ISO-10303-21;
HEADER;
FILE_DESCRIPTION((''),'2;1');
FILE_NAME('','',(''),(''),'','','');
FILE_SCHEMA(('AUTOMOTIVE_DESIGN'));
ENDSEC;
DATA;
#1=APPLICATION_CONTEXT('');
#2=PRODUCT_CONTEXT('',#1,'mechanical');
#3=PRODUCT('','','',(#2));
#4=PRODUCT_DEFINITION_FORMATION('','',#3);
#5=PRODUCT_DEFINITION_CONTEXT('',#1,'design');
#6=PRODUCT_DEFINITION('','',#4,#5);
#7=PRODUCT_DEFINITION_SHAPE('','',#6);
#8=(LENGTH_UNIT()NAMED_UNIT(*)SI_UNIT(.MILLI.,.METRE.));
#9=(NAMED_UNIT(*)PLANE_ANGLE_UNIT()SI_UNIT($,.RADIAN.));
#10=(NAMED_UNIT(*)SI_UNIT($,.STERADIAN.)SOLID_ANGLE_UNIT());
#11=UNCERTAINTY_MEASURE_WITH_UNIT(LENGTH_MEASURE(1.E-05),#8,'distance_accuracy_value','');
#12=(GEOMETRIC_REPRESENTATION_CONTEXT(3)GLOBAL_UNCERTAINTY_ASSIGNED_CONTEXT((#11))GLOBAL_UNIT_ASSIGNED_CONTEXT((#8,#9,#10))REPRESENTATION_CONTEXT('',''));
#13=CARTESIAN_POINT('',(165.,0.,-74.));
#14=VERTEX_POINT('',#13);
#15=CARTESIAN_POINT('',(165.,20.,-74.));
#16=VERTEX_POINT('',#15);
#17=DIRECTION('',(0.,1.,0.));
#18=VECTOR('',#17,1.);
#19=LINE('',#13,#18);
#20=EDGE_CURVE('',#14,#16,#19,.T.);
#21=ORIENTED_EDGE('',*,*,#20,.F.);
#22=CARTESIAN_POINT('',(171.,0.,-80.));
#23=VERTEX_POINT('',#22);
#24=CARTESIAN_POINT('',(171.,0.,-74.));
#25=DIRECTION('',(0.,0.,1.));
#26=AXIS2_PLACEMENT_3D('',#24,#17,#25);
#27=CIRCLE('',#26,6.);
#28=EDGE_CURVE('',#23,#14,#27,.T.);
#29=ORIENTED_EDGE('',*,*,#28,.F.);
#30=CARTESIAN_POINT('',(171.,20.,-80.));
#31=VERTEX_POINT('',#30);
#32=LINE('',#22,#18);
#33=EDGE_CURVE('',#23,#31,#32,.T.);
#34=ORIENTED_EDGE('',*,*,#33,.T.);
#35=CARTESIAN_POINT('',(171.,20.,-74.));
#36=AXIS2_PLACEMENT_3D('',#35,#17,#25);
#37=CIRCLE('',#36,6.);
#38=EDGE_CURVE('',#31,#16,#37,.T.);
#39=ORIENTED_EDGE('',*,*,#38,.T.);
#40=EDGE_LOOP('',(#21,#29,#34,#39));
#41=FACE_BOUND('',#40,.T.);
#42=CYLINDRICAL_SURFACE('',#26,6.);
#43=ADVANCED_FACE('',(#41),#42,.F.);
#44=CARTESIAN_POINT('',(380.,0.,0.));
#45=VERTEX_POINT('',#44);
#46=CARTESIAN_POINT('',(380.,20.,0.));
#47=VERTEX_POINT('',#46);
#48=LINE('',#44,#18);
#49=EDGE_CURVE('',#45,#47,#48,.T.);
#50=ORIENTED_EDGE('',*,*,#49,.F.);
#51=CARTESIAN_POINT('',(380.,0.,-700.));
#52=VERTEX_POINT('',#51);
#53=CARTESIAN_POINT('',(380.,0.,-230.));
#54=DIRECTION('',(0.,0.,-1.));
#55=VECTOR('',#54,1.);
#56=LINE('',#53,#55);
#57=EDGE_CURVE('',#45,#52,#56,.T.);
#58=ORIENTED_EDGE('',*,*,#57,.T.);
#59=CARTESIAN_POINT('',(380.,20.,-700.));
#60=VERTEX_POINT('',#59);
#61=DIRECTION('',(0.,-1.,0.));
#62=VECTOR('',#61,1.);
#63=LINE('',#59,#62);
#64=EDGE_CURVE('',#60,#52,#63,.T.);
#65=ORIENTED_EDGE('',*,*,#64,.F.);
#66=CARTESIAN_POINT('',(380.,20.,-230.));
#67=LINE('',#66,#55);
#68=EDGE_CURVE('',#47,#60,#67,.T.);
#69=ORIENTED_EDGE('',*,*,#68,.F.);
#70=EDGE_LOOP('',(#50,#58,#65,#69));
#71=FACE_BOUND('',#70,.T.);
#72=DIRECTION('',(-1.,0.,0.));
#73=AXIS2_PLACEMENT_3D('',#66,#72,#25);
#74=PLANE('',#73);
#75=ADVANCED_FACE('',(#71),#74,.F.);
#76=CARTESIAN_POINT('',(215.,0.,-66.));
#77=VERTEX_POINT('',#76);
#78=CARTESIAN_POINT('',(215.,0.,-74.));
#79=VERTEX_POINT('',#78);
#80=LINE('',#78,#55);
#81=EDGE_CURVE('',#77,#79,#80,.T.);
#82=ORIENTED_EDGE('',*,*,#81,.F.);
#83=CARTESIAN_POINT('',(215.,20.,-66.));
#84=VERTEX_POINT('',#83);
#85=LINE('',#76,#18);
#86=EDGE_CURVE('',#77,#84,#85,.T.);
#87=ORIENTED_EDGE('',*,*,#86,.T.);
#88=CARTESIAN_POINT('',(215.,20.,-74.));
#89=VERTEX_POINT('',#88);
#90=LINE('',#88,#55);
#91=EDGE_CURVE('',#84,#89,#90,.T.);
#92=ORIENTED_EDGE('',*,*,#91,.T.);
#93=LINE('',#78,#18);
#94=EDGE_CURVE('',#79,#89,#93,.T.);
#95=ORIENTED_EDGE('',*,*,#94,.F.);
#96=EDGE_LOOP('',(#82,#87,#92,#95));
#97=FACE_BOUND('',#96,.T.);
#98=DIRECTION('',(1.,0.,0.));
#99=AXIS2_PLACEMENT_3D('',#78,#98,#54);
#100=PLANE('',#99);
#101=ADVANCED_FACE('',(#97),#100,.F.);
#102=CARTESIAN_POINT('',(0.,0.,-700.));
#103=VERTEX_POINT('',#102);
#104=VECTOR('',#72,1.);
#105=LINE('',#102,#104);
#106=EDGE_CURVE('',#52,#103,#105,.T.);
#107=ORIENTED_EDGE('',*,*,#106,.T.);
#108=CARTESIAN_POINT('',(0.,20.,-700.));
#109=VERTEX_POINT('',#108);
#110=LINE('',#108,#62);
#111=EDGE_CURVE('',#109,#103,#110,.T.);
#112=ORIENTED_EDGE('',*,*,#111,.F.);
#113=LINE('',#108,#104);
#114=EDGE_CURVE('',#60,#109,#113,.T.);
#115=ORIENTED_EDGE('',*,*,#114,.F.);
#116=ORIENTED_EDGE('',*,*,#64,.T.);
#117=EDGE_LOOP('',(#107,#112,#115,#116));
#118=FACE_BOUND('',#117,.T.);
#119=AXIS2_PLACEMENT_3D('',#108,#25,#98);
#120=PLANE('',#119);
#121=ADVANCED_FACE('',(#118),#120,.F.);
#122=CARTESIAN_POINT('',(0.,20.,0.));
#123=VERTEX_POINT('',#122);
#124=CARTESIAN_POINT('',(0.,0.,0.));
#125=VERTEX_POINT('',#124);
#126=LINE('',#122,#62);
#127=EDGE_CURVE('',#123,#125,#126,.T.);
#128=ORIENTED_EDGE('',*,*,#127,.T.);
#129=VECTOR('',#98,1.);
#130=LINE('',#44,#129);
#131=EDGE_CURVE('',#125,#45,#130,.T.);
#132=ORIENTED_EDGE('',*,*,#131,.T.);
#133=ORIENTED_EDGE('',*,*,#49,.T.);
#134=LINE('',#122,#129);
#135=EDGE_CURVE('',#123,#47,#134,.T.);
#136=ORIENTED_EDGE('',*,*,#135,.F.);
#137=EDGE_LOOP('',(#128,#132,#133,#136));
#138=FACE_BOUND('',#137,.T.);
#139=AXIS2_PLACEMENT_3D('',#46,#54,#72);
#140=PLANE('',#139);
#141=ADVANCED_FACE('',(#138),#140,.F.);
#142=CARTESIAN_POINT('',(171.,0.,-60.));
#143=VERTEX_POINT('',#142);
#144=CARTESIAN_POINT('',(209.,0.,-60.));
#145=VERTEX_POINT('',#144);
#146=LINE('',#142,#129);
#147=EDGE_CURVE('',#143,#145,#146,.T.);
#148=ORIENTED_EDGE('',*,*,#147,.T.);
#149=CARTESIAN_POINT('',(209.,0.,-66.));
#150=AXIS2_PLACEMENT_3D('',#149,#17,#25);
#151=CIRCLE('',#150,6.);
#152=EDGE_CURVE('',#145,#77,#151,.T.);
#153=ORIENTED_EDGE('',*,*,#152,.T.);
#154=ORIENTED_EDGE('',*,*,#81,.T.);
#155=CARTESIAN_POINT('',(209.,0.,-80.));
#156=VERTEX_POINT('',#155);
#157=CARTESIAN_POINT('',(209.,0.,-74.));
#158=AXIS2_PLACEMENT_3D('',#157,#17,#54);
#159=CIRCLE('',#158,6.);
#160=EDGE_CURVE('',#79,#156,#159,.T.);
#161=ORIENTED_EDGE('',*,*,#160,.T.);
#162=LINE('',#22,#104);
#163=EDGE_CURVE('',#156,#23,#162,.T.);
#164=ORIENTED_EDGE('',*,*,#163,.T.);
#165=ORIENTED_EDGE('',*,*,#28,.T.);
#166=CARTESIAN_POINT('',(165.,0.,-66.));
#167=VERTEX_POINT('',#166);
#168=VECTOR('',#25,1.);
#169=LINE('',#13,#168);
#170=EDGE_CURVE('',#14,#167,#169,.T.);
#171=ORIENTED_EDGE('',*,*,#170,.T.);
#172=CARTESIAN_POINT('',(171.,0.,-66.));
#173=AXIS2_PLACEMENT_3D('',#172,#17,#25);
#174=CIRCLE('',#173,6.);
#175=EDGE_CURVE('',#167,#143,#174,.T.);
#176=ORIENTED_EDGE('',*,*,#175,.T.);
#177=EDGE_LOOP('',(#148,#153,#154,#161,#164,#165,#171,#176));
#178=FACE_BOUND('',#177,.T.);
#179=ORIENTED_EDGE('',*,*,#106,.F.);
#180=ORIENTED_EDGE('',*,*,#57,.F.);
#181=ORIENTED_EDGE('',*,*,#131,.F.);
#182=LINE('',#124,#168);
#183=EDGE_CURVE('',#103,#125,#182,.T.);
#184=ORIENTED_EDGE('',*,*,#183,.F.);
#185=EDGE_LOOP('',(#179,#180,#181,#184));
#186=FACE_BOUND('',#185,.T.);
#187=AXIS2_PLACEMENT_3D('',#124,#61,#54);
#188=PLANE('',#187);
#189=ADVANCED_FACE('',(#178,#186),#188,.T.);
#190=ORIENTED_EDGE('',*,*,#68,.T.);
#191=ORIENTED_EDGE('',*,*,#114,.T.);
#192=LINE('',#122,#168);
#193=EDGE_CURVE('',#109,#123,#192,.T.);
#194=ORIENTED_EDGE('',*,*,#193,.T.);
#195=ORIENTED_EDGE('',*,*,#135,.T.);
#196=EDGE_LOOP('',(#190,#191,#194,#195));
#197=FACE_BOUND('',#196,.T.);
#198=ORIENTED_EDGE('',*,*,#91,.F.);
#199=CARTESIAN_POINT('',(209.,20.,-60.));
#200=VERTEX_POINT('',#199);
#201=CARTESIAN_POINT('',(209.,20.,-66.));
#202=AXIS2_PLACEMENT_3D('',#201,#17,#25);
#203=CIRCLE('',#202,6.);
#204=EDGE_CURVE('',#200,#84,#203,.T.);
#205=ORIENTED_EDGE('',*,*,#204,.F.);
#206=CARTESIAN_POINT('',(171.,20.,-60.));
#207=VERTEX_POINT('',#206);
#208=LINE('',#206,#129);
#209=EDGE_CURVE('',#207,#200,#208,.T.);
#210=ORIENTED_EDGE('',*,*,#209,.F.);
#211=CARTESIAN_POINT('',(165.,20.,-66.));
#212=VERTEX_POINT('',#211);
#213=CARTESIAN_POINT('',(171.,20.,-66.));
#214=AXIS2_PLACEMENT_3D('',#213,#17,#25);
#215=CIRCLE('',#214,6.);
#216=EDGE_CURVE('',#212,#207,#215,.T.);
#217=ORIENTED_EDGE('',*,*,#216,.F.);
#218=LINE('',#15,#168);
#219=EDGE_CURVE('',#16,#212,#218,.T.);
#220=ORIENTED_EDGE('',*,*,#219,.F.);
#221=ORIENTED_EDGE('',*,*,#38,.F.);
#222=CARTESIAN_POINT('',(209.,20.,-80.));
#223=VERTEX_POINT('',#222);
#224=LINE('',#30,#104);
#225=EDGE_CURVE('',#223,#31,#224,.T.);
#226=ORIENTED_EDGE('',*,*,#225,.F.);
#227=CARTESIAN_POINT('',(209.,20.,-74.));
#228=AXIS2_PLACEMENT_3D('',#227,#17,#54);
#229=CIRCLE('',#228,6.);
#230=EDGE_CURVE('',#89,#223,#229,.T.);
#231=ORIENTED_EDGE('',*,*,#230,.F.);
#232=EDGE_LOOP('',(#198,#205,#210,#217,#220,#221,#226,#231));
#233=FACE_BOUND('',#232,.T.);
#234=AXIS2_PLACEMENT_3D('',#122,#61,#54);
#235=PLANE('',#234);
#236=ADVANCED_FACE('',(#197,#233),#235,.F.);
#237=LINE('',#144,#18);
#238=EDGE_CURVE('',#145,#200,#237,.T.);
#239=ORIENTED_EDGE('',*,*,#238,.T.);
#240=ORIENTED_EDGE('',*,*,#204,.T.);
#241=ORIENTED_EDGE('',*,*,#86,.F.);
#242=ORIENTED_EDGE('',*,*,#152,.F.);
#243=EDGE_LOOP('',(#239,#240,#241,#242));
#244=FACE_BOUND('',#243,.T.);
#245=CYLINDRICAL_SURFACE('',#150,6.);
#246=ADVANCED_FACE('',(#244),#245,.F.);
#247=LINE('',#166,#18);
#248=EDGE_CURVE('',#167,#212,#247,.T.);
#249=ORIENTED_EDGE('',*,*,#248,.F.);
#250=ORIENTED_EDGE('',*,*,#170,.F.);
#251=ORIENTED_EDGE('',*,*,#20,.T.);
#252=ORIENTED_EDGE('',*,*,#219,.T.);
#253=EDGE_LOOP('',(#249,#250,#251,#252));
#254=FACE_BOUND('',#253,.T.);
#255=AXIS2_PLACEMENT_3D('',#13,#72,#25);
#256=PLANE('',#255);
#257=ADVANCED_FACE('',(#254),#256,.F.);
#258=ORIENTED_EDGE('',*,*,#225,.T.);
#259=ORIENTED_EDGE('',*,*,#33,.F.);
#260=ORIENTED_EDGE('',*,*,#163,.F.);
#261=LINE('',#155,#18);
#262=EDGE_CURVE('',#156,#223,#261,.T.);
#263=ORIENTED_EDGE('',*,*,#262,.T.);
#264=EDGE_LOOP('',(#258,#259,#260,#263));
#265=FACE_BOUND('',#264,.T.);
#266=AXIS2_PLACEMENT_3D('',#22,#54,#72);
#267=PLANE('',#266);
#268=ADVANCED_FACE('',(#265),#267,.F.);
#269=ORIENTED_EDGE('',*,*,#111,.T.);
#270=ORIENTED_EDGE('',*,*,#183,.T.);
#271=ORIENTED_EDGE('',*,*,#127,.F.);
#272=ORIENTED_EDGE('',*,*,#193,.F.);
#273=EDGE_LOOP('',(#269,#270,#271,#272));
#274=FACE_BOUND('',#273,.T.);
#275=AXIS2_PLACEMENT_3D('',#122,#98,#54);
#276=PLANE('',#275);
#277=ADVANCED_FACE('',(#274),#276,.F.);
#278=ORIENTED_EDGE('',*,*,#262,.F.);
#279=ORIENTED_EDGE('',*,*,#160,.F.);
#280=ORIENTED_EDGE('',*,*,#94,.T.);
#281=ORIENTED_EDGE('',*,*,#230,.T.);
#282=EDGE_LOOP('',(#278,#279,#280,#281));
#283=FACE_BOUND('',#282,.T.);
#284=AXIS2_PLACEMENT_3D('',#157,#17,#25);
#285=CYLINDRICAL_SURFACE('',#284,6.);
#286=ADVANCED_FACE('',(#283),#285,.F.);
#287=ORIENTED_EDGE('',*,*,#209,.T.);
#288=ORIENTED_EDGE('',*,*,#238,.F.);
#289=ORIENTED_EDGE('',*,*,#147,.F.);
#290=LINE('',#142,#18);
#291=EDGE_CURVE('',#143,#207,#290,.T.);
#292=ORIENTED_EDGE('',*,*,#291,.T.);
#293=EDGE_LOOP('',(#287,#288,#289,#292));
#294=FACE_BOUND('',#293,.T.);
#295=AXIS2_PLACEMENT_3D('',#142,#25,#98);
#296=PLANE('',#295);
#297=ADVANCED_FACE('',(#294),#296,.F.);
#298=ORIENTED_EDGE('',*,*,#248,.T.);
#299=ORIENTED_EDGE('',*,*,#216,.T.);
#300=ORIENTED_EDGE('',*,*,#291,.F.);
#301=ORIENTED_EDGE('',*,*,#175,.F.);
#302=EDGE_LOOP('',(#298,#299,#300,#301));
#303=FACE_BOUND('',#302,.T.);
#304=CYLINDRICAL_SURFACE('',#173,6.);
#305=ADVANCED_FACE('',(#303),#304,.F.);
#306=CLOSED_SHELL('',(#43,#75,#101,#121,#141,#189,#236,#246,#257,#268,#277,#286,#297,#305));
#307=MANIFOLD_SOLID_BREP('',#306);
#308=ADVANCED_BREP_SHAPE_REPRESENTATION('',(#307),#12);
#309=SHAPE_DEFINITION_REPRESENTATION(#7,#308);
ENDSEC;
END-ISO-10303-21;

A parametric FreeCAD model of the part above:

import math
import FreeCAD as App
import Part
import Sketcher

V = App.Vector
Q = App.Units.Quantity

doc = App.newDocument("Part")
body = doc.addObject("PartDesign::Body", "Body")

# Sketch on XZ plane
sketch1 = body.newObject("Sketcher::SketchObject", "Sketch")
sketch1.AttachmentSupport = (doc.getObject("XZ_Plane"), [""])
sketch1.MapMode = "FlatFace"
sketch1.addGeometry(Part.LineSegment(V(0, 0, 0), V(716, 0, 0)), False)
sketch1.addGeometry(Part.LineSegment(V(716, 0, 0), V(716, -230, 0)), False)
sketch1.addGeometry(Part.LineSegment(V(716, -230, 0), V(380, -230, 0)), False)
sketch1.addGeometry(Part.LineSegment(V(380, -230, 0), V(380, -700, 0)), False)
sketch1.addGeometry(Part.LineSegment(V(380, -700, 0), V(0, -700, 0)), False)
sketch1.addGeometry(Part.LineSegment(V(0, -700, 0), V(0, 0, 0)), False)
sketch1.addConstraint(Sketcher.Constraint("Coincident", 0, 2, 1, 1))
sketch1.addConstraint(Sketcher.Constraint("Coincident", 1, 2, 2, 1))
sketch1.addConstraint(Sketcher.Constraint("Coincident", 2, 2, 3, 1))
sketch1.addConstraint(Sketcher.Constraint("Coincident", 3, 2, 4, 1))
sketch1.addConstraint(Sketcher.Constraint("Coincident", 4, 2, 5, 1))
sketch1.addConstraint(Sketcher.Constraint("Coincident", 5, 2, 0, 1))
sketch1.addConstraint(Sketcher.Constraint("Horizontal", 0))
sketch1.addConstraint(Sketcher.Constraint("Vertical", 1))
sketch1.addConstraint(Sketcher.Constraint("Horizontal", 2))
sketch1.addConstraint(Sketcher.Constraint("Vertical", 3))
sketch1.addConstraint(Sketcher.Constraint("Horizontal", 4))
sketch1.addConstraint(Sketcher.Constraint("Vertical", 5))
sketch1.addConstraint(Sketcher.Constraint("Coincident", 5, 2, -1, 1))
sketch1.addConstraint(Sketcher.Constraint("DistanceX", 0, 1, 0, 2, Q("716 mm")))
sketch1.addConstraint(Sketcher.Constraint("DistanceX", 2, 2, 2, 1, Q("336 mm")))
sketch1.addConstraint(Sketcher.Constraint("DistanceY", 1, 2, 1, 1, Q("230 mm")))
sketch1.addConstraint(Sketcher.Constraint("DistanceY", 3, 2, 3, 1, Q("470 mm")))
pad1 = body.newObject("PartDesign::Pad", "Pad")
pad1.Profile = sketch1
pad1.Length = 20
pad1.Reversed = True

# Sketch on XZ plane
sketch2 = body.newObject("Sketcher::SketchObject", "Sketch001")
sketch2.AttachmentSupport = (doc.getObject("XZ_Plane"), [""])
sketch2.MapMode = "FlatFace"
sketch2.AttachmentOffset = App.Placement(V(0, 0, -20), App.Rotation())
sketch2.addGeometry(Part.LineSegment(V(380, -230, 0), V(380, 0, 0)), False)
sketch2.addGeometry(Part.LineSegment(V(380, 0, 0), V(716, 0, 0)), False)
sketch2.addGeometry(Part.LineSegment(V(716, 0, 0), V(716, -230, 0)), False)
sketch2.addGeometry(Part.LineSegment(V(716, -230, 0), V(380, -230, 0)), False)
sketch2.addConstraint(Sketcher.Constraint("Coincident", 0, 2, 1, 1))
sketch2.addConstraint(Sketcher.Constraint("Coincident", 1, 2, 2, 1))
sketch2.addConstraint(Sketcher.Constraint("Coincident", 2, 2, 3, 1))
sketch2.addConstraint(Sketcher.Constraint("Coincident", 3, 2, 0, 1))
sketch2.addConstraint(Sketcher.Constraint("Vertical", 0))
sketch2.addConstraint(Sketcher.Constraint("Horizontal", 1))
sketch2.addConstraint(Sketcher.Constraint("Vertical", 2))
sketch2.addConstraint(Sketcher.Constraint("Horizontal", 3))
sketch2.addConstraint(Sketcher.Constraint("PointOnObject", 0, 2, -1))
sketch2.addConstraint(Sketcher.Constraint("DistanceX", 1, 1, 1, 2, Q("336 mm")))
sketch2.addConstraint(Sketcher.Constraint("DistanceY", 0, 1, 0, 2, Q("230 mm")))
sketch2.addConstraint(Sketcher.Constraint("DistanceX", -1, 1, 0, 2, Q("380 mm")))
pocket1 = body.newObject("PartDesign::Pocket", "Pocket")
pocket1.Profile = sketch2
pocket1.Length = 20
pocket1.Reversed = True

# Sketch on XZ plane
sketch3 = body.newObject("Sketcher::SketchObject", "Sketch002")
sketch3.AttachmentSupport = (doc.getObject("XZ_Plane"), [""])
sketch3.MapMode = "FlatFace"
sketch3.AttachmentOffset = App.Placement(V(0, 0, -20), App.Rotation())
sketch3.addGeometry(Part.LineSegment(V(209, -80, 0), V(171, -80, 0)), False)
sketch3.addGeometry(Part.ArcOfCircle(Part.Circle(V(171, -74, 0), V(0, 0, 1), 6), math.radians(180), math.radians(270)), False)
sketch3.addGeometry(Part.LineSegment(V(165, -74, 0), V(165, -66, 0)), False)
sketch3.addGeometry(Part.ArcOfCircle(Part.Circle(V(171, -66, 0), V(0, 0, 1), 6), math.radians(90), math.radians(180)), False)
sketch3.addGeometry(Part.LineSegment(V(171, -60, 0), V(209, -60, 0)), False)
sketch3.addGeometry(Part.ArcOfCircle(Part.Circle(V(209, -66, 0), V(0, 0, 1), 6), math.radians(0), math.radians(90)), False)
sketch3.addGeometry(Part.LineSegment(V(215, -66, 0), V(215, -74, 0)), False)
sketch3.addGeometry(Part.ArcOfCircle(Part.Circle(V(209, -74, 0), V(0, 0, 1), 6), math.radians(-90), math.radians(0)), False)
sketch3.addConstraint(Sketcher.Constraint("Tangent", 0, 2, 1, 2))
sketch3.addConstraint(Sketcher.Constraint("Tangent", 1, 1, 2, 1))
sketch3.addConstraint(Sketcher.Constraint("Tangent", 2, 2, 3, 2))
sketch3.addConstraint(Sketcher.Constraint("Tangent", 3, 1, 4, 1))
sketch3.addConstraint(Sketcher.Constraint("Tangent", 4, 2, 5, 2))
sketch3.addConstraint(Sketcher.Constraint("Tangent", 5, 1, 6, 1))
sketch3.addConstraint(Sketcher.Constraint("Tangent", 6, 2, 7, 2))
sketch3.addConstraint(Sketcher.Constraint("Tangent", 7, 1, 0, 1))
sketch3.addConstraint(Sketcher.Constraint("Horizontal", 0))
sketch3.addConstraint(Sketcher.Constraint("Vertical", 2))
sketch3.addConstraint(Sketcher.Constraint("Horizontal", 4))
sketch3.addConstraint(Sketcher.Constraint("Vertical", 6))
sketch3.addConstraint(Sketcher.Constraint("Equal", 1, 3))
sketch3.addConstraint(Sketcher.Constraint("Equal", 3, 5))
sketch3.addConstraint(Sketcher.Constraint("Equal", 5, 7))
sketch3.addConstraint(Sketcher.Constraint("Radius", 1, Q("6 mm")))
sketch3.addConstraint(Sketcher.Constraint("DistanceX", 0, 2, 0, 1, Q("38 mm")))
sketch3.addConstraint(Sketcher.Constraint("DistanceY", 2, 1, 2, 2, Q("8 mm")))
sketch3.addConstraint(Sketcher.Constraint("DistanceX", -1, 1, 1, 3, Q("171 mm")))
sketch3.addConstraint(Sketcher.Constraint("DistanceY", 1, 3, -1, 1, Q("74 mm")))
pocket2 = body.newObject("PartDesign::Pocket", "Pocket001")
pocket2.Profile = sketch3
pocket2.Length = 20
pocket2.Reversed = True

doc.recompute()
